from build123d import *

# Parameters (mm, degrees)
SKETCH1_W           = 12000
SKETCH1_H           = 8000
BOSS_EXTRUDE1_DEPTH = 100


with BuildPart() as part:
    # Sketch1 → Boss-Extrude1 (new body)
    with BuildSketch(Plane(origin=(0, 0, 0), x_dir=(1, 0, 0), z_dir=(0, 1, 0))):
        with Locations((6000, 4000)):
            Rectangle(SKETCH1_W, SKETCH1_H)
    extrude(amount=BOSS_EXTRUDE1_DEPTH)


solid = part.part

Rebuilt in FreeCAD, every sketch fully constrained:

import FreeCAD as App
import Part
import Sketcher


def add_polygon(sketch, points):
    """Adds a closed chain of lines whose ends are joined by coincident constraints."""
    first, n = sketch.GeometryCount, len(points)
    for a, b in zip(points, points[1:] + points[:1]):
        sketch.addGeometry(Part.LineSegment(App.Vector(*a, 0), App.Vector(*b, 0)), False)
    for i in range(n):
        sketch.addConstraint(Sketcher.Constraint("Coincident", first + i, 2, first + (i + 1) % n, 1))

doc = App.newDocument("Part")
body = doc.addObject("PartDesign::Body", "Body")

# Sketch on XZ plane
sketch1 = body.newObject("Sketcher::SketchObject", "Sketch")
sketch1.AttachmentSupport = (doc.getObject("XZ_Plane"), [""])
sketch1.MapMode = "FlatFace"
add_polygon(sketch1, [(0, -8000), (0, 0), (12000, 0), (12000, -8000)])  # lines 0-3
sketch1.addConstraint([
    Sketcher.Constraint("Vertical", 0),
    Sketcher.Constraint("Horizontal", 1),
    Sketcher.Constraint("Vertical", 2),
    Sketcher.Constraint("Horizontal", 3),
    Sketcher.Constraint("Coincident", 0, 2, -1, 1),
    Sketcher.Constraint("DistanceX", 1, 1, 1, 2, 12000.0),
    Sketcher.Constraint("DistanceY", 0, 1, 0, 2, 8000.0),
])
pad1 = body.newObject("PartDesign::Pad", "Pad")
pad1.Profile = sketch1
pad1.Length = 100
pad1.Reversed = True

doc.recompute()
